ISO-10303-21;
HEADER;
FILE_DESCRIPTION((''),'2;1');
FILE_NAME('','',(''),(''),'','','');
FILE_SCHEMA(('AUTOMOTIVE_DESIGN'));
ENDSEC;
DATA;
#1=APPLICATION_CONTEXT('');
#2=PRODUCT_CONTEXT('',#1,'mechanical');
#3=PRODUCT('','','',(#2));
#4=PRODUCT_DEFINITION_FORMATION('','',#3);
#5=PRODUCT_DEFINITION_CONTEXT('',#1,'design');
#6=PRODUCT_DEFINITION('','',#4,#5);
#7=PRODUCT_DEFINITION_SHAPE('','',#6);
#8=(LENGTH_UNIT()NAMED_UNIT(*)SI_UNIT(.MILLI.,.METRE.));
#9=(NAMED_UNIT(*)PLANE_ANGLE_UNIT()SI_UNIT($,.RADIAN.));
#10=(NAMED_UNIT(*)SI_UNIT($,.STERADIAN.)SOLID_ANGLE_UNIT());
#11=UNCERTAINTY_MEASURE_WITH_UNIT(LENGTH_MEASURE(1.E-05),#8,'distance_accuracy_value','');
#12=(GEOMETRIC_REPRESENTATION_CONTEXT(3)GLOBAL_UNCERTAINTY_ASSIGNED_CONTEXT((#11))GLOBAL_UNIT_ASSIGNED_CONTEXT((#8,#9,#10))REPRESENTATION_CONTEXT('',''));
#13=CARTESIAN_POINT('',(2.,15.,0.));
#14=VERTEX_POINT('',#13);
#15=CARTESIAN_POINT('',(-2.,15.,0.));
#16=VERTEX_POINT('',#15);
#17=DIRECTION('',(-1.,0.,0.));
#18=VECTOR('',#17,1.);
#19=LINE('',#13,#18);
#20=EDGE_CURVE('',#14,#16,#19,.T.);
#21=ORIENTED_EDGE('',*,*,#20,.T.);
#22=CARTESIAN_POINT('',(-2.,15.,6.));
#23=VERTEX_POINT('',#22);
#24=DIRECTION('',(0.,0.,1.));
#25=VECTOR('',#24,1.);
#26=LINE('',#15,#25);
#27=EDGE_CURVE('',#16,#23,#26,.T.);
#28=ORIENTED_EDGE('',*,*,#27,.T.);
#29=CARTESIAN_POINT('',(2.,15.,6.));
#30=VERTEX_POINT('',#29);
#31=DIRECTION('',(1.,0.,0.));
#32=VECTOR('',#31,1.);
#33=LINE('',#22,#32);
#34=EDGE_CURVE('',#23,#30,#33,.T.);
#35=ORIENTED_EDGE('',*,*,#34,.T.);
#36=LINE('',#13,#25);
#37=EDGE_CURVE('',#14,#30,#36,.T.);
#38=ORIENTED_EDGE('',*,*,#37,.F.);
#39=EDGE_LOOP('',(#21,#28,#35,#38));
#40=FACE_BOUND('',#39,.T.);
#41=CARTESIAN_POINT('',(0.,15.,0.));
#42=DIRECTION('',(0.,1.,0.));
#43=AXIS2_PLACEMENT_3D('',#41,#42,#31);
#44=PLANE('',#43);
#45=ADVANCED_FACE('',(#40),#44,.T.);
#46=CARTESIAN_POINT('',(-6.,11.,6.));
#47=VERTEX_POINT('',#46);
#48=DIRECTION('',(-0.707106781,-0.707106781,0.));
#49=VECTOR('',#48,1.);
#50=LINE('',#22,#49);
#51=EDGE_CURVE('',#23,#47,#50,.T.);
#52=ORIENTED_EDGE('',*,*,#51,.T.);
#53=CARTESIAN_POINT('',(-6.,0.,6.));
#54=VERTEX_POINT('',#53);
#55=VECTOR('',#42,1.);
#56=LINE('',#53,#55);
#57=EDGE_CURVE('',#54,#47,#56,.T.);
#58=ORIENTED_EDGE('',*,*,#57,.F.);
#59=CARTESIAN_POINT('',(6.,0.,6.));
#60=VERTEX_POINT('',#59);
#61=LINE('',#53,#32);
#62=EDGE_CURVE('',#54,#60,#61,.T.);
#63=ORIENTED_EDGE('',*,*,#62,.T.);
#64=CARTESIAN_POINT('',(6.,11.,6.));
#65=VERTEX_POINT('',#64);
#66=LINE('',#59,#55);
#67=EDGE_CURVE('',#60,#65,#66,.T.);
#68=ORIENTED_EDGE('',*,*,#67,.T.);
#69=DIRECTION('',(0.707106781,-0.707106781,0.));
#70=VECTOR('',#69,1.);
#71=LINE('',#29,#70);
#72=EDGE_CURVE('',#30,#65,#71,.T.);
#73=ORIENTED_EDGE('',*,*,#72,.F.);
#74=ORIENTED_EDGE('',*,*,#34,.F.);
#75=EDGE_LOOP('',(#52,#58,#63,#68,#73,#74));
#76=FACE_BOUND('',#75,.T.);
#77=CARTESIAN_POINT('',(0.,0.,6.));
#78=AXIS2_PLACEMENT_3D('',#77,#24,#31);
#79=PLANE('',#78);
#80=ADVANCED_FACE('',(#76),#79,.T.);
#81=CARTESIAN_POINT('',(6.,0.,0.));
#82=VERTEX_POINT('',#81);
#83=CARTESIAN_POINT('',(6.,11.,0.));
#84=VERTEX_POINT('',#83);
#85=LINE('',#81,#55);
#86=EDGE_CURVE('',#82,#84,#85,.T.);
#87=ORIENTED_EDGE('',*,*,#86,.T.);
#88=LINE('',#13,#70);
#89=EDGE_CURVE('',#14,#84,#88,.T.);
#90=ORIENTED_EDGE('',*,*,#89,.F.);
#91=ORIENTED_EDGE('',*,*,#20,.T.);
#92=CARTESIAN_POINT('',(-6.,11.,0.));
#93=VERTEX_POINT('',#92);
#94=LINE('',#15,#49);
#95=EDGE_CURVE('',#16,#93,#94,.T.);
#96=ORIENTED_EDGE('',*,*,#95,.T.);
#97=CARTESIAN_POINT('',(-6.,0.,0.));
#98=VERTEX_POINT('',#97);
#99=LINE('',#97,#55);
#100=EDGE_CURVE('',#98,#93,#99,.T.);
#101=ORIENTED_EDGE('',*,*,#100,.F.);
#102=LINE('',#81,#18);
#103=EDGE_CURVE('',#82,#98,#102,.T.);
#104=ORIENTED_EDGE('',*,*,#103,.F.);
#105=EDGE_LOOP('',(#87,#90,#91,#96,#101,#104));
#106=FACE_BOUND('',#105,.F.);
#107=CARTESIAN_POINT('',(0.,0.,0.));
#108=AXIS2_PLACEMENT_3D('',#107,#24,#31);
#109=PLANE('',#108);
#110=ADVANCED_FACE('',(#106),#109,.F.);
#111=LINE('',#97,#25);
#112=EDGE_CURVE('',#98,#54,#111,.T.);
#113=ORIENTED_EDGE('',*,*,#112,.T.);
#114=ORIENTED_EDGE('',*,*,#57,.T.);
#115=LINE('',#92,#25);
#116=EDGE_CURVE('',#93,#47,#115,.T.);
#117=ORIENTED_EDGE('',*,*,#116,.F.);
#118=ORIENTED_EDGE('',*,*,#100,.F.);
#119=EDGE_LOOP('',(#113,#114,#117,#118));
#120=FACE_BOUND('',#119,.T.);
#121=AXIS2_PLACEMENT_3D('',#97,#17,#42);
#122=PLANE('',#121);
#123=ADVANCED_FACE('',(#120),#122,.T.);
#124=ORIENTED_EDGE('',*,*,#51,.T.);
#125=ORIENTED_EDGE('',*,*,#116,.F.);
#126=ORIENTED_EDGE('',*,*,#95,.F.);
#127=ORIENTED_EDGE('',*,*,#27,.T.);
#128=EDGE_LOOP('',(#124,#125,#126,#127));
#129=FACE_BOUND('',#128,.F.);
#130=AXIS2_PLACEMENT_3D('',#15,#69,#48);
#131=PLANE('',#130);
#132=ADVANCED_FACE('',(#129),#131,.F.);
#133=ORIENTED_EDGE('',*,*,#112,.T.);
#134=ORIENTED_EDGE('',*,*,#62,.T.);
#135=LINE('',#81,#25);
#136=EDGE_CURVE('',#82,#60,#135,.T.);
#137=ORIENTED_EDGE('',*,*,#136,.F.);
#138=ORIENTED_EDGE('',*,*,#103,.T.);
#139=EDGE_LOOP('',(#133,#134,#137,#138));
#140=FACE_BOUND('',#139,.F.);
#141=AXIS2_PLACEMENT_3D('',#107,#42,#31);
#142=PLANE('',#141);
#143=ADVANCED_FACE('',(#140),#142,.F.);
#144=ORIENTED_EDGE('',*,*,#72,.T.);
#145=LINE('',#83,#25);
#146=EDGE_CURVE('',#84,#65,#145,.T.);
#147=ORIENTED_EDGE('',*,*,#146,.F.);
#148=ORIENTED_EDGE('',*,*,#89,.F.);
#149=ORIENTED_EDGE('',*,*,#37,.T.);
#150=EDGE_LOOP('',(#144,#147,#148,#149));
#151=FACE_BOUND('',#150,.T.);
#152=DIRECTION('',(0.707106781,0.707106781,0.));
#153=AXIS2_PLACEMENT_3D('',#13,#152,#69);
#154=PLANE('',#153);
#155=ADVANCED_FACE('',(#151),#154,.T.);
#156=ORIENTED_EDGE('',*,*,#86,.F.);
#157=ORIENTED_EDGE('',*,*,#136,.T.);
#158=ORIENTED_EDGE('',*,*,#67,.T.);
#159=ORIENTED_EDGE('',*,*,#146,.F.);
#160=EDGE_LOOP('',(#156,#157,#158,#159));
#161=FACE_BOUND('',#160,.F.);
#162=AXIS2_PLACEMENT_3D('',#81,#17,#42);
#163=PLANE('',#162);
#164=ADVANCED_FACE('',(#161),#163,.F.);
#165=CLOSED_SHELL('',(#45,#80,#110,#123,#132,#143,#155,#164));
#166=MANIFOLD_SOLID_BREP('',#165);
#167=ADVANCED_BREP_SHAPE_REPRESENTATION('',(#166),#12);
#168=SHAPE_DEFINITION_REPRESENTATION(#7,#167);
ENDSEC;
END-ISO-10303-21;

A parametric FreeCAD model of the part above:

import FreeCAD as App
import Part
import Sketcher

doc = App.newDocument("Part")
body = doc.addObject("PartDesign::Body", "Body")

# Sketch on XY plane
sketch1 = body.newObject("Sketcher::SketchObject", "Sketch")
sketch1.AttachmentSupport = (doc.getObject("XY_Plane"), [""])
sketch1.MapMode = "FlatFace"
sketch1.addGeometry([
    Part.LineSegment(App.Vector(2, 15, 0), App.Vector(-2, 15, 0)),  # 0
    Part.LineSegment(App.Vector(-2, 15, 0), App.Vector(-6, 11, 0)),  # 1
    Part.LineSegment(App.Vector(-6, 11, 0), App.Vector(-6, 0, 0)),  # 2
    Part.LineSegment(App.Vector(-6, 0, 0), App.Vector(6, 0, 0)),  # 3
    Part.LineSegment(App.Vector(6, 0, 0), App.Vector(6, 11, 0)),  # 4
    Part.LineSegment(App.Vector(6, 11, 0), App.Vector(2, 15, 0)),  # 5
], False)
sketch1.addConstraint([
    Sketcher.Constraint("Coincident", 0, 2, 1, 1),
    Sketcher.Constraint("Coincident", 1, 2, 2, 1),
    Sketcher.Constraint("Coincident", 2, 2, 3, 1),
    Sketcher.Constraint("Coincident", 3, 2, 4, 1),
    Sketcher.Constraint("Coincident", 4, 2, 5, 1),
    Sketcher.Constraint("Coincident", 5, 2, 0, 1),
    Sketcher.Constraint("Horizontal", 0),
    Sketcher.Constraint("Vertical", 2),
    Sketcher.Constraint("Horizontal", 3),
    Sketcher.Constraint("Vertical", 4),
    Sketcher.Constraint("Symmetric", 2, 2, 3, 2, -1, 1),
    Sketcher.Constraint("Perpendicular", 1, 5),
    Sketcher.Constraint("Horizontal", 1, 2, 4, 2),
    Sketcher.Constraint("Equal", 1, 5),
    Sketcher.Constraint("DistanceY", 2, 2, 2, 1, 11.0),
    Sketcher.Constraint("DistanceX", 0, 2, -1, 1, 2.0),
    Sketcher.Constraint("DistanceY", -1, 1, 0, 2, 15.0),
])
pad1 = body.newObject("PartDesign::Pad", "Pad")
pad1.Profile = sketch1
pad1.Length = 6

doc.recompute()
